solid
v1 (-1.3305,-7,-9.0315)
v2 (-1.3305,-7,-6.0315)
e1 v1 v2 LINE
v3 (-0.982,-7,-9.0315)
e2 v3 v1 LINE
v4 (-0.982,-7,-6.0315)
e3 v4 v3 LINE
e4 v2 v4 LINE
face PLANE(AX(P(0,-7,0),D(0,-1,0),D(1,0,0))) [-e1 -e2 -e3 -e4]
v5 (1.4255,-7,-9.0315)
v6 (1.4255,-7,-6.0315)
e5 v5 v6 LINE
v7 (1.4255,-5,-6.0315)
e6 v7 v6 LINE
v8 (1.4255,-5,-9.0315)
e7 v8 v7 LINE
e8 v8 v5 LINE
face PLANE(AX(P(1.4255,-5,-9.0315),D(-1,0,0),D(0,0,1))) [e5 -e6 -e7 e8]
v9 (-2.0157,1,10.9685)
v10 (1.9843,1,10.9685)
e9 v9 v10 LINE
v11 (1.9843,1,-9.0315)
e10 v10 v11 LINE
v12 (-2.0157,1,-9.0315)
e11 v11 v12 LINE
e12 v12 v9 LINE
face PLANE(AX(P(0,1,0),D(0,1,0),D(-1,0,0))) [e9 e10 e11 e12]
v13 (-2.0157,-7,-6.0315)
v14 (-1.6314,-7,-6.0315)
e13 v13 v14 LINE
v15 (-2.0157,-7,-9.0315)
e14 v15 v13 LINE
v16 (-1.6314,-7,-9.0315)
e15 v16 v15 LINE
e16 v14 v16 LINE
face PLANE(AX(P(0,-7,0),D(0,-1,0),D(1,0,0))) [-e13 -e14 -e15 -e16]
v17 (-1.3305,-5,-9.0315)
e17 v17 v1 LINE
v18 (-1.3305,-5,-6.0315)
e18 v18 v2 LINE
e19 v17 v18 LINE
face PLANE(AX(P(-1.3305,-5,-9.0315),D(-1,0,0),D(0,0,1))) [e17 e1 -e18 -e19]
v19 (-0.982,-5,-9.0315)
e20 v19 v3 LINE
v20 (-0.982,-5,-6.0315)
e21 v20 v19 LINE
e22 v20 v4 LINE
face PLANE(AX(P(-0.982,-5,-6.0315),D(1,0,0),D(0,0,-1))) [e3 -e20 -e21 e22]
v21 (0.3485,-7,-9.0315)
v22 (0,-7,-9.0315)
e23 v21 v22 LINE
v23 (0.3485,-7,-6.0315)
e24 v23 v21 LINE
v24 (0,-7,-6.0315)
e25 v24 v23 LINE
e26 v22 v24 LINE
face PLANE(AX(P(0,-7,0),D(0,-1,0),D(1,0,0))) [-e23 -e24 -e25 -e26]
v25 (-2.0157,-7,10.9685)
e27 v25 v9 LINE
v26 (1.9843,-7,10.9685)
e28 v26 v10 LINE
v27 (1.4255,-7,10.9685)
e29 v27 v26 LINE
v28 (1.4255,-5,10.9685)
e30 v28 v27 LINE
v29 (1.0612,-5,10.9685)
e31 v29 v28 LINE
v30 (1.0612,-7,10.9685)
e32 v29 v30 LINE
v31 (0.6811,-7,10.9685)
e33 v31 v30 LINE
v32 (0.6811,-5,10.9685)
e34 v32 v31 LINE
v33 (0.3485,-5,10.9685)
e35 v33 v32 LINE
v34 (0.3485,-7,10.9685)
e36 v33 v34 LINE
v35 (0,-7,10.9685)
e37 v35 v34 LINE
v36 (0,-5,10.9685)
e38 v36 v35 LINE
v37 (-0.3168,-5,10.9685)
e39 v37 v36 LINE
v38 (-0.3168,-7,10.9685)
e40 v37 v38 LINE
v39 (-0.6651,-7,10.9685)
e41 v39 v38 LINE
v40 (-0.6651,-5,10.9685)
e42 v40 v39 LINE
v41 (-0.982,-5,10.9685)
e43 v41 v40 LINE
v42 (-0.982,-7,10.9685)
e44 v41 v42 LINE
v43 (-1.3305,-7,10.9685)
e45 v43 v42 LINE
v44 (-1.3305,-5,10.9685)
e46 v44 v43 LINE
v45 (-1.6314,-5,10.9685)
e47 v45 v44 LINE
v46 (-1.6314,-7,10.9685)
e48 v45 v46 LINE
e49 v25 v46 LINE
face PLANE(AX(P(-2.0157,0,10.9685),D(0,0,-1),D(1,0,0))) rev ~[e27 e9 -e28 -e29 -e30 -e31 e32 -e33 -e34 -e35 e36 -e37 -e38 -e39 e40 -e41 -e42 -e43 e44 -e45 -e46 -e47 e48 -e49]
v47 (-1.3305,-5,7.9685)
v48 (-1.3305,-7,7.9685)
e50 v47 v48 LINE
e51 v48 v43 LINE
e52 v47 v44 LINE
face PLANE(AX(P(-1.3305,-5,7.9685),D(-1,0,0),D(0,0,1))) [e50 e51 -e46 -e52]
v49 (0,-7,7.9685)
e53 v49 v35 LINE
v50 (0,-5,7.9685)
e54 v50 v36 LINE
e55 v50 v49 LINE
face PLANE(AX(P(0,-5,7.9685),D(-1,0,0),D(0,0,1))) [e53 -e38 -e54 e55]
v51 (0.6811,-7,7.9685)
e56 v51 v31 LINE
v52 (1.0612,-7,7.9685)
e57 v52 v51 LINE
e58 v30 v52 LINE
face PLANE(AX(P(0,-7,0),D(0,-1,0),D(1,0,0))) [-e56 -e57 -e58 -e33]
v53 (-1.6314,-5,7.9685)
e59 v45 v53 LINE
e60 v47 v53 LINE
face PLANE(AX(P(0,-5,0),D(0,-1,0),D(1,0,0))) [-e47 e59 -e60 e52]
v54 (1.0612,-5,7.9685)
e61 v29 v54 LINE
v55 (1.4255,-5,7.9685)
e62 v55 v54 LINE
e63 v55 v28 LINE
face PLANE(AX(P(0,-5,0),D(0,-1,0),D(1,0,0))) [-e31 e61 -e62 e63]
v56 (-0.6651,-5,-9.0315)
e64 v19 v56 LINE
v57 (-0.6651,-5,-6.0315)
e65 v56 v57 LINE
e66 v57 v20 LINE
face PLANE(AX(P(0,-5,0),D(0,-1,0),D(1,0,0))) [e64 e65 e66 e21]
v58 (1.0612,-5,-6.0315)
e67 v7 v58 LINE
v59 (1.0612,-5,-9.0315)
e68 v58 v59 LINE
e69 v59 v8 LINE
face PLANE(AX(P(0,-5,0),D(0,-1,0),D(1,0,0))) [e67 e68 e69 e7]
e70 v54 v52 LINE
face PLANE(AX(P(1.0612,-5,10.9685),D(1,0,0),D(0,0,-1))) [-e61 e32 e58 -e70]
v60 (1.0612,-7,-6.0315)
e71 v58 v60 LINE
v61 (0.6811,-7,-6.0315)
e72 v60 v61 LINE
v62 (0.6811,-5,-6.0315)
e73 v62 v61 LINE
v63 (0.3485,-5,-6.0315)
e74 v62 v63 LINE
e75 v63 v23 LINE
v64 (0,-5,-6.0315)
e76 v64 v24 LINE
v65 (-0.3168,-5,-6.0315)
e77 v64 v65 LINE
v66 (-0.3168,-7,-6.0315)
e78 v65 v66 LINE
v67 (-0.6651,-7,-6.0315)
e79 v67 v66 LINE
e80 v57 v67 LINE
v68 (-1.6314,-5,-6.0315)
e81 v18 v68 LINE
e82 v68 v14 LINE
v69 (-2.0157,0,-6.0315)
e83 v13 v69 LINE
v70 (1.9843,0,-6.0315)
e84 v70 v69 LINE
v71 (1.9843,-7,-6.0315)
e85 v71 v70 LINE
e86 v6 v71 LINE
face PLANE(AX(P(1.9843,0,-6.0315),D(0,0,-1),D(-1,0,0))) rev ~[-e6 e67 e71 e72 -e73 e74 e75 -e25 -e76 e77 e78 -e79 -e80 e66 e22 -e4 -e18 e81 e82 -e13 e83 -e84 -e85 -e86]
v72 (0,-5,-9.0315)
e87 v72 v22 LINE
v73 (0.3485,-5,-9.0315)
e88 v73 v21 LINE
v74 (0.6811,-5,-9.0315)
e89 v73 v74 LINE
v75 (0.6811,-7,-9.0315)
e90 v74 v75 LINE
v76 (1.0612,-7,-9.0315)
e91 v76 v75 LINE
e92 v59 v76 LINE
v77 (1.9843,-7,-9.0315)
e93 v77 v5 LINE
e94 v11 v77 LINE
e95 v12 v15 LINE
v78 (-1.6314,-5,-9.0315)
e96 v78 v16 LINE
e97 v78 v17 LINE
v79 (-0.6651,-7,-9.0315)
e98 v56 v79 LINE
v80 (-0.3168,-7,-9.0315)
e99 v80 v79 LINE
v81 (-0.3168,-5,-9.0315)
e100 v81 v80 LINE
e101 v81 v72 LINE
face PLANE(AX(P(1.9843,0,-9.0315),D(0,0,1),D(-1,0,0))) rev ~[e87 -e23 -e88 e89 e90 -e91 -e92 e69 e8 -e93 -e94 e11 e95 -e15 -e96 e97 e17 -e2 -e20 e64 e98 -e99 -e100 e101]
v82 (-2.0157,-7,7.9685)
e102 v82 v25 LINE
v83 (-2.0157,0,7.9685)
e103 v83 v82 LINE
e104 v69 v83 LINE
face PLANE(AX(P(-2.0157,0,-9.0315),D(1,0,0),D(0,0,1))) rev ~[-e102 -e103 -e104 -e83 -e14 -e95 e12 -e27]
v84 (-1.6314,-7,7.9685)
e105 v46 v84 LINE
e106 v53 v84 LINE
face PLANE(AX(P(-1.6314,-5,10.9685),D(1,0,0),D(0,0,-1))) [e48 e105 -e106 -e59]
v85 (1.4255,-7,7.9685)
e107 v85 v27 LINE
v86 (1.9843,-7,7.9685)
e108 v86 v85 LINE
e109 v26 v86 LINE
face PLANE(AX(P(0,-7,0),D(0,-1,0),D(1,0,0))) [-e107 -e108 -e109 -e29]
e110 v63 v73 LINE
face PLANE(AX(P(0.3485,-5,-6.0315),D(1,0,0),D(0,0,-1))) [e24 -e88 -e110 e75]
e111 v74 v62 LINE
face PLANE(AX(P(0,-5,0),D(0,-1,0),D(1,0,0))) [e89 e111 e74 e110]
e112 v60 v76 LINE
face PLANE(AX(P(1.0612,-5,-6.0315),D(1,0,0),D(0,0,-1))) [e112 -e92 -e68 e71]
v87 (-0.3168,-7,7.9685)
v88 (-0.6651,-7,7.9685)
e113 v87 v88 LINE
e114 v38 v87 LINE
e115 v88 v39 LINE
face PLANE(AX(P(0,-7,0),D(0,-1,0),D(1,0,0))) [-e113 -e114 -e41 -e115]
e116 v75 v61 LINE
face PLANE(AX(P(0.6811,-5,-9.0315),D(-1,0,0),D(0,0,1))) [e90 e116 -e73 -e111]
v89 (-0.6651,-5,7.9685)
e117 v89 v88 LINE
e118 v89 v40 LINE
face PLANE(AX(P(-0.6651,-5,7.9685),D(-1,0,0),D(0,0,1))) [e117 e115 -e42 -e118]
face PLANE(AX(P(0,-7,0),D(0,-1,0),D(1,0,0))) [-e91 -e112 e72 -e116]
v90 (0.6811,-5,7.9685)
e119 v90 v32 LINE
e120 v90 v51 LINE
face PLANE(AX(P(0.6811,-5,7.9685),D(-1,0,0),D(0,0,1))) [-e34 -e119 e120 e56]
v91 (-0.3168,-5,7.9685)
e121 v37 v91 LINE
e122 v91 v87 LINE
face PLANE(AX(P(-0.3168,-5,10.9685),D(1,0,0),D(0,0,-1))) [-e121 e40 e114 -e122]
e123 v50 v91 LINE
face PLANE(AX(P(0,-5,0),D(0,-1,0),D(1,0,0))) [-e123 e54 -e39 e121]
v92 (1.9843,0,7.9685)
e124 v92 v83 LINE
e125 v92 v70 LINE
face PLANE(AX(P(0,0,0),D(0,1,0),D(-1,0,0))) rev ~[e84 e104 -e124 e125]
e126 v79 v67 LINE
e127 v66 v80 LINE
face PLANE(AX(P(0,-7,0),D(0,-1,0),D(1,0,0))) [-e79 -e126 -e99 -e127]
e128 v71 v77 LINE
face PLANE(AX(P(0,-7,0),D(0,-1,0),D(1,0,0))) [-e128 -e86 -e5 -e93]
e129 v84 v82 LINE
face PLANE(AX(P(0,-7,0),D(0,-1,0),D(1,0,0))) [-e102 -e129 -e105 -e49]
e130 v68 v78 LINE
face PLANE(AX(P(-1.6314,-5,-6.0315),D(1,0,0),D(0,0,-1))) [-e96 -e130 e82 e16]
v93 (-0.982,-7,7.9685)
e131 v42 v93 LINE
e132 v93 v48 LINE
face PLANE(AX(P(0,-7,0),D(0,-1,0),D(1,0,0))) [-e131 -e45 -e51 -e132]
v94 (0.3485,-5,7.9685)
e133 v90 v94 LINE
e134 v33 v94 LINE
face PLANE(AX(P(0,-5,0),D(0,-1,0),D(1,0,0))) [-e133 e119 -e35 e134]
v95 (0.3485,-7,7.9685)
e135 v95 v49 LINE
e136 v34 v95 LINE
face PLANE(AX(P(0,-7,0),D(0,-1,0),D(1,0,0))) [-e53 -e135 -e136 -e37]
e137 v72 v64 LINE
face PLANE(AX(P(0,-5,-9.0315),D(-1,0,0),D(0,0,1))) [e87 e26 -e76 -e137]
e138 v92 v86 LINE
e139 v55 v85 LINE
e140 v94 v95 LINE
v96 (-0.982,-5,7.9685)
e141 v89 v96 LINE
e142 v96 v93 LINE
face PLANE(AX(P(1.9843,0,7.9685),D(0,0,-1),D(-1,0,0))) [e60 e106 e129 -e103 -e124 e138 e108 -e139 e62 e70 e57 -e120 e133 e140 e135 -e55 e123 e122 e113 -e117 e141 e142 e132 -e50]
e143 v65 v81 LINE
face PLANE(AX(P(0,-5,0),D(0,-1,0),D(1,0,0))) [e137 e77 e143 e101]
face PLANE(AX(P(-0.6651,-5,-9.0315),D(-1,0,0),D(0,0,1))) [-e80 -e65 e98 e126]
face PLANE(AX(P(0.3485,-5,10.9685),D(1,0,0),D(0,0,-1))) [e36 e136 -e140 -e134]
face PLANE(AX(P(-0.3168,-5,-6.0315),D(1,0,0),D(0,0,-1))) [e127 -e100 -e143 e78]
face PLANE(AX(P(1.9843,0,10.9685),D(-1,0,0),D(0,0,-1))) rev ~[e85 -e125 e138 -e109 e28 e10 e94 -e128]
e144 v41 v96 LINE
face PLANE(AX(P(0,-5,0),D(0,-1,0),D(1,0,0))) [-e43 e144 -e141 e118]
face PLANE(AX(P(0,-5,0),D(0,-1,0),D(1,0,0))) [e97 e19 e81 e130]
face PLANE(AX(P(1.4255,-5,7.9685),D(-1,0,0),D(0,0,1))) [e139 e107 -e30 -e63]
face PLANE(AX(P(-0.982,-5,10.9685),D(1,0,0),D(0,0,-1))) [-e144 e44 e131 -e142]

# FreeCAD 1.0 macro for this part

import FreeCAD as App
import Part
import Sketcher

V = App.Vector
Q = App.Units.Quantity


def add_polygon(sketch, points):
    """Adds a closed chain of lines whose ends are joined by coincident constraints."""
    first, n = sketch.GeometryCount, len(points)
    for a, b in zip(points, points[1:] + points[:1]):
        sketch.addGeometry(Part.LineSegment(App.Vector(*a, 0), App.Vector(*b, 0)), False)
    for i in range(n):
        sketch.addConstraint(Sketcher.Constraint("Coincident", first + i, 2, first + (i + 1) % n, 1))

doc = App.newDocument("Part")
params = doc.addObject("Spreadsheet::Sheet", "Params")
for row, (alias, value) in enumerate([
    ("sketch1_width", "4 mm"),
    ("sketch1_height", "20 mm"),
    ("pad1_length", "1 mm"),
    ("sketch2_width", "4 mm"),
    ("sketch2_height", "3 mm"),
    ("pad2_length", "5 mm"),
    ("sketch3_height", "3 mm"),
    ("sketch3_width", "0.38 mm"),
    ("pad3_length", "2 mm"),
], start=1):
    params.set(f"A{row}", alias)
    params.set(f"B{row}", "=" + value)
    params.setAlias(f"B{row}", alias)

body = doc.addObject("PartDesign::Body", "Body")

# Sketch on XZ plane
sketch1 = doc.addObject("Sketcher::SketchObject", "Sketch")
body.addObject(sketch1)
sketch1.AttachmentSupport = (doc.XZ_Plane, [""])
sketch1.MapMode = "FlatFace"
add_polygon(sketch1, [(-2, -9), (-2, 11), (2, 11), (2, -9)])  # lines 0-3
sketch1.addConstraint([
    Sketcher.Constraint("Vertical", 0),
    Sketcher.Constraint("Horizontal", 1),
    Sketcher.Constraint("Vertical", 2),
    Sketcher.Constraint("Horizontal", 3),
    Sketcher.Constraint("DistanceX", 1, 1, 1, 2, Q("4 mm")),
    Sketcher.Constraint("DistanceY", 0, 1, 0, 2, Q("20 mm")),
    Sketcher.Constraint("DistanceX", 0, 2, -1, 1, Q("2.0157 mm")),
    Sketcher.Constraint("DistanceY", -1, 1, 0, 2, Q("10.9685 mm")),
])
sketch1.setExpression("Constraints[8]", "Params.sketch1_width")
sketch1.setExpression("Constraints[9]", "Params.sketch1_height")
pad1 = doc.addObject("PartDesign::Pad", "Pad")
body.addObject(pad1)
pad1.Profile = sketch1
pad1.setExpression("Length", "Params.pad1_length")
pad1.Reversed = True

# Sketch on XZ plane
sketch2 = doc.addObject("Sketcher::SketchObject", "Sketch001")
body.addObject(sketch2)
sketch2.AttachmentSupport = (doc.XZ_Plane, [""])
sketch2.MapMode = "FlatFace"
add_polygon(sketch2, [(-2, 11), (-2, 8), (2, 8), (2, 11)])  # lines 0-3
add_polygon(sketch2, [(-2, -6), (-2, -9), (2, -9), (2, -6)])  # lines 4-7
sketch2.addConstraint([
    Sketcher.Constraint("Vertical", 0),
    Sketcher.Constraint("Horizontal", 1),
    Sketcher.Constraint("Vertical", 2),
    Sketcher.Constraint("Horizontal", 3),
    Sketcher.Constraint("Vertical", 4),
    Sketcher.Constraint("Horizontal", 5),
    Sketcher.Constraint("Vertical", 6),
    Sketcher.Constraint("Horizontal", 7),
    Sketcher.Constraint("Vertical", 3, 2, 4, 2),
    Sketcher.Constraint("Vertical", 2, 2, 5, 2),
    Sketcher.Constraint("Equal", 2, 4),
    Sketcher.Constraint("DistanceX", 1, 1, 1, 2, Q("4 mm")),
    Sketcher.Constraint("DistanceY", 0, 2, 0, 1, Q("3 mm")),
    Sketcher.Constraint("DistanceY", 4, 2, 0, 2, Q("17 mm")),
    Sketcher.Constraint("DistanceX", 0, 2, -1, 1, Q("2.0157 mm")),
    Sketcher.Constraint("DistanceY", -1, 1, 0, 2, Q("7.9685 mm")),
])
sketch2.setExpression("Constraints[19]", "Params.sketch2_width")
sketch2.setExpression("Constraints[20]", "Params.sketch2_height")
pad2 = doc.addObject("PartDesign::Pad", "Pad001")
body.addObject(pad2)
pad2.Profile = sketch2
pad2.setExpression("Length", "Params.pad2_length")

# Sketch on XZ plane
sketch3 = doc.addObject("Sketcher::SketchObject", "Sketch002")
body.addObject(sketch3)
sketch3.AttachmentSupport = (doc.XZ_Plane, [""])
sketch3.MapMode = "FlatFace"
sketch3.AttachmentOffset = App.Placement(V(0, 0, 5), App.Rotation())
add_polygon(sketch3, [(1.43, -9.03), (1.98, -9.03), (1.98, -6.03), (1.43, -6.03)])  # lines 0-3
add_polygon(sketch3, [(0.68, -9.03), (1.06, -9.03), (1.06, -6.03), (0.68, -6.03)])  # lines 4-7
add_polygon(sketch3, [(0, -9.03), (0.35, -9.03), (0.35, -6.03), (0, -6.03)])  # lines 8-11
add_polygon(sketch3, [(-0.67, -9.03), (-0.32, -9.03), (-0.32, -6.03), (-0.67, -6.03)])  # lines 12-15
add_polygon(sketch3, [(-1.33, -9.03), (-0.98, -9.03), (-0.98, -6.03), (-1.33, -6.03)])  # lines 16-19
add_polygon(sketch3, [(-2.02, -9.03), (-1.63, -9.03), (-1.63, -6.03), (-2.02, -6.03)])  # lines 20-23
add_polygon(sketch3, [(-0.32, 10.97), (-0.67, 10.97), (-0.67, 7.97), (-0.32, 7.97)])  # lines 24-27
add_polygon(sketch3, [(0.35, 10.97), (0, 10.97), (0, 7.97), (0.35, 7.97)])  # lines 28-31
add_polygon(sketch3, [(-1.63, 7.97), (-1.63, 10.97), (-2.02, 10.97), (-2.02, 7.97)])  # lines 32-35
add_polygon(sketch3, [(1.06, 10.97), (0.68, 10.97), (0.68, 7.97), (1.06, 7.97)])  # lines 36-39
add_polygon(sketch3, [(1.43, 10.97), (1.43, 7.97), (1.98, 7.97), (1.98, 10.97)])  # lines 40-43
add_polygon(sketch3, [(-1.33, 7.97), (-0.98, 7.97), (-0.98, 10.97), (-1.33, 10.97)])  # lines 44-47
sketch3.addConstraint([
    Sketcher.Constraint("Horizontal", 0),
    Sketcher.Constraint("Vertical", 1),
    Sketcher.Constraint("Horizontal", 2),
    Sketcher.Constraint("Vertical", 3),
    Sketcher.Constraint("Horizontal", 4),
    Sketcher.Constraint("Vertical", 5),
    Sketcher.Constraint("Horizontal", 6),
    Sketcher.Constraint("Vertical", 7),
    Sketcher.Constraint("Horizontal", 8),
    Sketcher.Constraint("Vertical", 9),
    Sketcher.Constraint("Horizontal", 10),
    Sketcher.Constraint("Vertical", 11),
    Sketcher.Constraint("Horizontal", 12),
    Sketcher.Constraint("Vertical", 13),
    Sketcher.Constraint("Horizontal", 14),
    Sketcher.Constraint("Vertical", 15),
    Sketcher.Constraint("Horizontal", 16),
    Sketcher.Constraint("Vertical", 17),
    Sketcher.Constraint("Horizontal", 18),
    Sketcher.Constraint("Vertical", 19),
    Sketcher.Constraint("Horizontal", 20),
    Sketcher.Constraint("Vertical", 21),
    Sketcher.Constraint("Horizontal", 22),
    Sketcher.Constraint("Vertical", 23),
    Sketcher.Constraint("Horizontal", 24),
    Sketcher.Constraint("Vertical", 25),
    Sketcher.Constraint("Horizontal", 26),
    Sketcher.Constraint("Vertical", 27),
    Sketcher.Constraint("Horizontal", 28),
    Sketcher.Constraint("Vertical", 29),
    Sketcher.Constraint("Horizontal", 30),
    Sketcher.Constraint("Vertical", 31),
    Sketcher.Constraint("Vertical", 32),
    Sketcher.Constraint("Horizontal", 33),
    Sketcher.Constraint("Vertical", 34),
    Sketcher.Constraint("Horizontal", 35),
    Sketcher.Constraint("Horizontal", 36),
    Sketcher.Constraint("Vertical", 37),
    Sketcher.Constraint("Horizontal", 38),
    Sketcher.Constraint("Vertical", 39),
    Sketcher.Constraint("Vertical", 40),
    Sketcher.Constraint("Horizontal", 41),
    Sketcher.Constraint("Vertical", 42),
    Sketcher.Constraint("Horizontal", 43),
    Sketcher.Constraint("Horizontal", 44),
    Sketcher.Constraint("Vertical", 45),
    Sketcher.Constraint("Horizontal", 46),
    Sketcher.Constraint("Vertical", 47),
    Sketcher.Constraint("PointOnObject", 10, 2, -2),
    Sketcher.Constraint("PointOnObject", 28, 2, -2),
    Sketcher.Constraint("Horizontal", 3, 2, 4, 2),
    Sketcher.Constraint("Horizontal", 2, 2, 5, 2),
    Sketcher.Constraint("Horizontal", 7, 2, 8, 2),
    Sketcher.Constraint("Horizontal", 6, 2, 9, 2),
    Sketcher.Constraint("Horizontal", 11, 2, 12, 2),
    Sketcher.Constraint("Horizontal", 10, 2, 13, 2),
    Sketcher.Constraint("Horizontal", 15, 2, 16, 2),
    Sketcher.Constraint("Horizontal", 14, 2, 17, 2),
    Sketcher.Constraint("Horizontal", 19, 2, 20, 2),
    Sketcher.Constraint("Horizontal", 18, 2, 21, 2),
    Sketcher.Constraint("Horizontal", 27, 2, 28, 2),
    Sketcher.Constraint("Horizontal", 26, 2, 29, 2),
    Sketcher.Constraint("Horizontal", 31, 2, 32, 2),
    Sketcher.Constraint("Horizontal", 30, 2, 34, 2),
    Sketcher.Constraint("Horizontal", 33, 2, 36, 2),
    Sketcher.Constraint("Horizontal", 35, 2, 37, 2),
    Sketcher.Constraint("Horizontal", 38, 2, 40, 2),
    Sketcher.Constraint("Horizontal", 39, 2, 42, 2),
    Sketcher.Constraint("Horizontal", 41, 2, 44, 2),
    Sketcher.Constraint("Horizontal", 43, 2, 45, 2),
    Sketcher.Constraint("Vertical", 15, 2, 24, 2),
    Sketcher.Constraint("Vertical", 13, 2, 26, 2),
    Sketcher.Constraint("Vertical", 9, 2, 30, 2),
    Sketcher.Constraint("Vertical", 21, 2, 32, 2),
    Sketcher.Constraint("Vertical", 23, 2, 33, 2),
    Sketcher.Constraint("Vertical", 7, 2, 36, 2),
    Sketcher.Constraint("Vertical", 5, 2, 38, 2),
    Sketcher.Constraint("Vertical", 3, 2, 40, 2),
    Sketcher.Constraint("Vertical", 1, 2, 41, 2),
    Sketcher.Constraint("Vertical", 17, 2, 44, 2),
    Sketcher.Constraint("Vertical", 19, 2, 46, 2),
    Sketcher.Constraint("Equal", 10, 12),
    Sketcher.Constraint("Equal", 10, 16),
    Sketcher.Constraint("Equal", 23, 25),
    Sketcher.Constraint("DistanceY", 14, 2, 24, 2, Q("17 mm")),
    Sketcher.Constraint("DistanceY", 1, 1, 1, 2, Q("3 mm")),
    Sketcher.Constraint("DistanceX", 4, 1, 4, 2, Q("0.38 mm")),
    Sketcher.Constraint("DistanceX", 32, 2, 31, 2, Q("1.98 mm")),
    Sketcher.Constraint("DistanceX", 0, 1, 0, 2, Q("0.5588 mm")),
    Sketcher.Constraint("DistanceX", 8, 1, 8, 2, Q("0.3485 mm")),
    Sketcher.Constraint("DistanceX", 20, 1, 20, 2, Q("0.3843 mm")),
    Sketcher.Constraint("DistanceX", -1, 1, 6, 2, Q("0.681 mm")),
    Sketcher.Constraint("DistanceX", 14, 2, -1, 1, Q("0.665 mm")),
    Sketcher.Constraint("DistanceX", 16, 2, -1, 1, Q("0.982 mm")),
    Sketcher.Constraint("DistanceX", 4, 2, 0, 2, Q("0.923 mm")),
    Sketcher.Constraint("DistanceY", 0, 2, -1, 1, Q("9.0315 mm")),
])
sketch3.setExpression("Constraints[133]", "Params.sketch3_height")
sketch3.setExpression("Constraints[134]", "Params.sketch3_width")
pad3 = doc.addObject("PartDesign::Pad", "Pad002")
body.addObject(pad3)
pad3.Profile = sketch3
pad3.setExpression("Length", "Params.pad3_length")

doc.recompute()
